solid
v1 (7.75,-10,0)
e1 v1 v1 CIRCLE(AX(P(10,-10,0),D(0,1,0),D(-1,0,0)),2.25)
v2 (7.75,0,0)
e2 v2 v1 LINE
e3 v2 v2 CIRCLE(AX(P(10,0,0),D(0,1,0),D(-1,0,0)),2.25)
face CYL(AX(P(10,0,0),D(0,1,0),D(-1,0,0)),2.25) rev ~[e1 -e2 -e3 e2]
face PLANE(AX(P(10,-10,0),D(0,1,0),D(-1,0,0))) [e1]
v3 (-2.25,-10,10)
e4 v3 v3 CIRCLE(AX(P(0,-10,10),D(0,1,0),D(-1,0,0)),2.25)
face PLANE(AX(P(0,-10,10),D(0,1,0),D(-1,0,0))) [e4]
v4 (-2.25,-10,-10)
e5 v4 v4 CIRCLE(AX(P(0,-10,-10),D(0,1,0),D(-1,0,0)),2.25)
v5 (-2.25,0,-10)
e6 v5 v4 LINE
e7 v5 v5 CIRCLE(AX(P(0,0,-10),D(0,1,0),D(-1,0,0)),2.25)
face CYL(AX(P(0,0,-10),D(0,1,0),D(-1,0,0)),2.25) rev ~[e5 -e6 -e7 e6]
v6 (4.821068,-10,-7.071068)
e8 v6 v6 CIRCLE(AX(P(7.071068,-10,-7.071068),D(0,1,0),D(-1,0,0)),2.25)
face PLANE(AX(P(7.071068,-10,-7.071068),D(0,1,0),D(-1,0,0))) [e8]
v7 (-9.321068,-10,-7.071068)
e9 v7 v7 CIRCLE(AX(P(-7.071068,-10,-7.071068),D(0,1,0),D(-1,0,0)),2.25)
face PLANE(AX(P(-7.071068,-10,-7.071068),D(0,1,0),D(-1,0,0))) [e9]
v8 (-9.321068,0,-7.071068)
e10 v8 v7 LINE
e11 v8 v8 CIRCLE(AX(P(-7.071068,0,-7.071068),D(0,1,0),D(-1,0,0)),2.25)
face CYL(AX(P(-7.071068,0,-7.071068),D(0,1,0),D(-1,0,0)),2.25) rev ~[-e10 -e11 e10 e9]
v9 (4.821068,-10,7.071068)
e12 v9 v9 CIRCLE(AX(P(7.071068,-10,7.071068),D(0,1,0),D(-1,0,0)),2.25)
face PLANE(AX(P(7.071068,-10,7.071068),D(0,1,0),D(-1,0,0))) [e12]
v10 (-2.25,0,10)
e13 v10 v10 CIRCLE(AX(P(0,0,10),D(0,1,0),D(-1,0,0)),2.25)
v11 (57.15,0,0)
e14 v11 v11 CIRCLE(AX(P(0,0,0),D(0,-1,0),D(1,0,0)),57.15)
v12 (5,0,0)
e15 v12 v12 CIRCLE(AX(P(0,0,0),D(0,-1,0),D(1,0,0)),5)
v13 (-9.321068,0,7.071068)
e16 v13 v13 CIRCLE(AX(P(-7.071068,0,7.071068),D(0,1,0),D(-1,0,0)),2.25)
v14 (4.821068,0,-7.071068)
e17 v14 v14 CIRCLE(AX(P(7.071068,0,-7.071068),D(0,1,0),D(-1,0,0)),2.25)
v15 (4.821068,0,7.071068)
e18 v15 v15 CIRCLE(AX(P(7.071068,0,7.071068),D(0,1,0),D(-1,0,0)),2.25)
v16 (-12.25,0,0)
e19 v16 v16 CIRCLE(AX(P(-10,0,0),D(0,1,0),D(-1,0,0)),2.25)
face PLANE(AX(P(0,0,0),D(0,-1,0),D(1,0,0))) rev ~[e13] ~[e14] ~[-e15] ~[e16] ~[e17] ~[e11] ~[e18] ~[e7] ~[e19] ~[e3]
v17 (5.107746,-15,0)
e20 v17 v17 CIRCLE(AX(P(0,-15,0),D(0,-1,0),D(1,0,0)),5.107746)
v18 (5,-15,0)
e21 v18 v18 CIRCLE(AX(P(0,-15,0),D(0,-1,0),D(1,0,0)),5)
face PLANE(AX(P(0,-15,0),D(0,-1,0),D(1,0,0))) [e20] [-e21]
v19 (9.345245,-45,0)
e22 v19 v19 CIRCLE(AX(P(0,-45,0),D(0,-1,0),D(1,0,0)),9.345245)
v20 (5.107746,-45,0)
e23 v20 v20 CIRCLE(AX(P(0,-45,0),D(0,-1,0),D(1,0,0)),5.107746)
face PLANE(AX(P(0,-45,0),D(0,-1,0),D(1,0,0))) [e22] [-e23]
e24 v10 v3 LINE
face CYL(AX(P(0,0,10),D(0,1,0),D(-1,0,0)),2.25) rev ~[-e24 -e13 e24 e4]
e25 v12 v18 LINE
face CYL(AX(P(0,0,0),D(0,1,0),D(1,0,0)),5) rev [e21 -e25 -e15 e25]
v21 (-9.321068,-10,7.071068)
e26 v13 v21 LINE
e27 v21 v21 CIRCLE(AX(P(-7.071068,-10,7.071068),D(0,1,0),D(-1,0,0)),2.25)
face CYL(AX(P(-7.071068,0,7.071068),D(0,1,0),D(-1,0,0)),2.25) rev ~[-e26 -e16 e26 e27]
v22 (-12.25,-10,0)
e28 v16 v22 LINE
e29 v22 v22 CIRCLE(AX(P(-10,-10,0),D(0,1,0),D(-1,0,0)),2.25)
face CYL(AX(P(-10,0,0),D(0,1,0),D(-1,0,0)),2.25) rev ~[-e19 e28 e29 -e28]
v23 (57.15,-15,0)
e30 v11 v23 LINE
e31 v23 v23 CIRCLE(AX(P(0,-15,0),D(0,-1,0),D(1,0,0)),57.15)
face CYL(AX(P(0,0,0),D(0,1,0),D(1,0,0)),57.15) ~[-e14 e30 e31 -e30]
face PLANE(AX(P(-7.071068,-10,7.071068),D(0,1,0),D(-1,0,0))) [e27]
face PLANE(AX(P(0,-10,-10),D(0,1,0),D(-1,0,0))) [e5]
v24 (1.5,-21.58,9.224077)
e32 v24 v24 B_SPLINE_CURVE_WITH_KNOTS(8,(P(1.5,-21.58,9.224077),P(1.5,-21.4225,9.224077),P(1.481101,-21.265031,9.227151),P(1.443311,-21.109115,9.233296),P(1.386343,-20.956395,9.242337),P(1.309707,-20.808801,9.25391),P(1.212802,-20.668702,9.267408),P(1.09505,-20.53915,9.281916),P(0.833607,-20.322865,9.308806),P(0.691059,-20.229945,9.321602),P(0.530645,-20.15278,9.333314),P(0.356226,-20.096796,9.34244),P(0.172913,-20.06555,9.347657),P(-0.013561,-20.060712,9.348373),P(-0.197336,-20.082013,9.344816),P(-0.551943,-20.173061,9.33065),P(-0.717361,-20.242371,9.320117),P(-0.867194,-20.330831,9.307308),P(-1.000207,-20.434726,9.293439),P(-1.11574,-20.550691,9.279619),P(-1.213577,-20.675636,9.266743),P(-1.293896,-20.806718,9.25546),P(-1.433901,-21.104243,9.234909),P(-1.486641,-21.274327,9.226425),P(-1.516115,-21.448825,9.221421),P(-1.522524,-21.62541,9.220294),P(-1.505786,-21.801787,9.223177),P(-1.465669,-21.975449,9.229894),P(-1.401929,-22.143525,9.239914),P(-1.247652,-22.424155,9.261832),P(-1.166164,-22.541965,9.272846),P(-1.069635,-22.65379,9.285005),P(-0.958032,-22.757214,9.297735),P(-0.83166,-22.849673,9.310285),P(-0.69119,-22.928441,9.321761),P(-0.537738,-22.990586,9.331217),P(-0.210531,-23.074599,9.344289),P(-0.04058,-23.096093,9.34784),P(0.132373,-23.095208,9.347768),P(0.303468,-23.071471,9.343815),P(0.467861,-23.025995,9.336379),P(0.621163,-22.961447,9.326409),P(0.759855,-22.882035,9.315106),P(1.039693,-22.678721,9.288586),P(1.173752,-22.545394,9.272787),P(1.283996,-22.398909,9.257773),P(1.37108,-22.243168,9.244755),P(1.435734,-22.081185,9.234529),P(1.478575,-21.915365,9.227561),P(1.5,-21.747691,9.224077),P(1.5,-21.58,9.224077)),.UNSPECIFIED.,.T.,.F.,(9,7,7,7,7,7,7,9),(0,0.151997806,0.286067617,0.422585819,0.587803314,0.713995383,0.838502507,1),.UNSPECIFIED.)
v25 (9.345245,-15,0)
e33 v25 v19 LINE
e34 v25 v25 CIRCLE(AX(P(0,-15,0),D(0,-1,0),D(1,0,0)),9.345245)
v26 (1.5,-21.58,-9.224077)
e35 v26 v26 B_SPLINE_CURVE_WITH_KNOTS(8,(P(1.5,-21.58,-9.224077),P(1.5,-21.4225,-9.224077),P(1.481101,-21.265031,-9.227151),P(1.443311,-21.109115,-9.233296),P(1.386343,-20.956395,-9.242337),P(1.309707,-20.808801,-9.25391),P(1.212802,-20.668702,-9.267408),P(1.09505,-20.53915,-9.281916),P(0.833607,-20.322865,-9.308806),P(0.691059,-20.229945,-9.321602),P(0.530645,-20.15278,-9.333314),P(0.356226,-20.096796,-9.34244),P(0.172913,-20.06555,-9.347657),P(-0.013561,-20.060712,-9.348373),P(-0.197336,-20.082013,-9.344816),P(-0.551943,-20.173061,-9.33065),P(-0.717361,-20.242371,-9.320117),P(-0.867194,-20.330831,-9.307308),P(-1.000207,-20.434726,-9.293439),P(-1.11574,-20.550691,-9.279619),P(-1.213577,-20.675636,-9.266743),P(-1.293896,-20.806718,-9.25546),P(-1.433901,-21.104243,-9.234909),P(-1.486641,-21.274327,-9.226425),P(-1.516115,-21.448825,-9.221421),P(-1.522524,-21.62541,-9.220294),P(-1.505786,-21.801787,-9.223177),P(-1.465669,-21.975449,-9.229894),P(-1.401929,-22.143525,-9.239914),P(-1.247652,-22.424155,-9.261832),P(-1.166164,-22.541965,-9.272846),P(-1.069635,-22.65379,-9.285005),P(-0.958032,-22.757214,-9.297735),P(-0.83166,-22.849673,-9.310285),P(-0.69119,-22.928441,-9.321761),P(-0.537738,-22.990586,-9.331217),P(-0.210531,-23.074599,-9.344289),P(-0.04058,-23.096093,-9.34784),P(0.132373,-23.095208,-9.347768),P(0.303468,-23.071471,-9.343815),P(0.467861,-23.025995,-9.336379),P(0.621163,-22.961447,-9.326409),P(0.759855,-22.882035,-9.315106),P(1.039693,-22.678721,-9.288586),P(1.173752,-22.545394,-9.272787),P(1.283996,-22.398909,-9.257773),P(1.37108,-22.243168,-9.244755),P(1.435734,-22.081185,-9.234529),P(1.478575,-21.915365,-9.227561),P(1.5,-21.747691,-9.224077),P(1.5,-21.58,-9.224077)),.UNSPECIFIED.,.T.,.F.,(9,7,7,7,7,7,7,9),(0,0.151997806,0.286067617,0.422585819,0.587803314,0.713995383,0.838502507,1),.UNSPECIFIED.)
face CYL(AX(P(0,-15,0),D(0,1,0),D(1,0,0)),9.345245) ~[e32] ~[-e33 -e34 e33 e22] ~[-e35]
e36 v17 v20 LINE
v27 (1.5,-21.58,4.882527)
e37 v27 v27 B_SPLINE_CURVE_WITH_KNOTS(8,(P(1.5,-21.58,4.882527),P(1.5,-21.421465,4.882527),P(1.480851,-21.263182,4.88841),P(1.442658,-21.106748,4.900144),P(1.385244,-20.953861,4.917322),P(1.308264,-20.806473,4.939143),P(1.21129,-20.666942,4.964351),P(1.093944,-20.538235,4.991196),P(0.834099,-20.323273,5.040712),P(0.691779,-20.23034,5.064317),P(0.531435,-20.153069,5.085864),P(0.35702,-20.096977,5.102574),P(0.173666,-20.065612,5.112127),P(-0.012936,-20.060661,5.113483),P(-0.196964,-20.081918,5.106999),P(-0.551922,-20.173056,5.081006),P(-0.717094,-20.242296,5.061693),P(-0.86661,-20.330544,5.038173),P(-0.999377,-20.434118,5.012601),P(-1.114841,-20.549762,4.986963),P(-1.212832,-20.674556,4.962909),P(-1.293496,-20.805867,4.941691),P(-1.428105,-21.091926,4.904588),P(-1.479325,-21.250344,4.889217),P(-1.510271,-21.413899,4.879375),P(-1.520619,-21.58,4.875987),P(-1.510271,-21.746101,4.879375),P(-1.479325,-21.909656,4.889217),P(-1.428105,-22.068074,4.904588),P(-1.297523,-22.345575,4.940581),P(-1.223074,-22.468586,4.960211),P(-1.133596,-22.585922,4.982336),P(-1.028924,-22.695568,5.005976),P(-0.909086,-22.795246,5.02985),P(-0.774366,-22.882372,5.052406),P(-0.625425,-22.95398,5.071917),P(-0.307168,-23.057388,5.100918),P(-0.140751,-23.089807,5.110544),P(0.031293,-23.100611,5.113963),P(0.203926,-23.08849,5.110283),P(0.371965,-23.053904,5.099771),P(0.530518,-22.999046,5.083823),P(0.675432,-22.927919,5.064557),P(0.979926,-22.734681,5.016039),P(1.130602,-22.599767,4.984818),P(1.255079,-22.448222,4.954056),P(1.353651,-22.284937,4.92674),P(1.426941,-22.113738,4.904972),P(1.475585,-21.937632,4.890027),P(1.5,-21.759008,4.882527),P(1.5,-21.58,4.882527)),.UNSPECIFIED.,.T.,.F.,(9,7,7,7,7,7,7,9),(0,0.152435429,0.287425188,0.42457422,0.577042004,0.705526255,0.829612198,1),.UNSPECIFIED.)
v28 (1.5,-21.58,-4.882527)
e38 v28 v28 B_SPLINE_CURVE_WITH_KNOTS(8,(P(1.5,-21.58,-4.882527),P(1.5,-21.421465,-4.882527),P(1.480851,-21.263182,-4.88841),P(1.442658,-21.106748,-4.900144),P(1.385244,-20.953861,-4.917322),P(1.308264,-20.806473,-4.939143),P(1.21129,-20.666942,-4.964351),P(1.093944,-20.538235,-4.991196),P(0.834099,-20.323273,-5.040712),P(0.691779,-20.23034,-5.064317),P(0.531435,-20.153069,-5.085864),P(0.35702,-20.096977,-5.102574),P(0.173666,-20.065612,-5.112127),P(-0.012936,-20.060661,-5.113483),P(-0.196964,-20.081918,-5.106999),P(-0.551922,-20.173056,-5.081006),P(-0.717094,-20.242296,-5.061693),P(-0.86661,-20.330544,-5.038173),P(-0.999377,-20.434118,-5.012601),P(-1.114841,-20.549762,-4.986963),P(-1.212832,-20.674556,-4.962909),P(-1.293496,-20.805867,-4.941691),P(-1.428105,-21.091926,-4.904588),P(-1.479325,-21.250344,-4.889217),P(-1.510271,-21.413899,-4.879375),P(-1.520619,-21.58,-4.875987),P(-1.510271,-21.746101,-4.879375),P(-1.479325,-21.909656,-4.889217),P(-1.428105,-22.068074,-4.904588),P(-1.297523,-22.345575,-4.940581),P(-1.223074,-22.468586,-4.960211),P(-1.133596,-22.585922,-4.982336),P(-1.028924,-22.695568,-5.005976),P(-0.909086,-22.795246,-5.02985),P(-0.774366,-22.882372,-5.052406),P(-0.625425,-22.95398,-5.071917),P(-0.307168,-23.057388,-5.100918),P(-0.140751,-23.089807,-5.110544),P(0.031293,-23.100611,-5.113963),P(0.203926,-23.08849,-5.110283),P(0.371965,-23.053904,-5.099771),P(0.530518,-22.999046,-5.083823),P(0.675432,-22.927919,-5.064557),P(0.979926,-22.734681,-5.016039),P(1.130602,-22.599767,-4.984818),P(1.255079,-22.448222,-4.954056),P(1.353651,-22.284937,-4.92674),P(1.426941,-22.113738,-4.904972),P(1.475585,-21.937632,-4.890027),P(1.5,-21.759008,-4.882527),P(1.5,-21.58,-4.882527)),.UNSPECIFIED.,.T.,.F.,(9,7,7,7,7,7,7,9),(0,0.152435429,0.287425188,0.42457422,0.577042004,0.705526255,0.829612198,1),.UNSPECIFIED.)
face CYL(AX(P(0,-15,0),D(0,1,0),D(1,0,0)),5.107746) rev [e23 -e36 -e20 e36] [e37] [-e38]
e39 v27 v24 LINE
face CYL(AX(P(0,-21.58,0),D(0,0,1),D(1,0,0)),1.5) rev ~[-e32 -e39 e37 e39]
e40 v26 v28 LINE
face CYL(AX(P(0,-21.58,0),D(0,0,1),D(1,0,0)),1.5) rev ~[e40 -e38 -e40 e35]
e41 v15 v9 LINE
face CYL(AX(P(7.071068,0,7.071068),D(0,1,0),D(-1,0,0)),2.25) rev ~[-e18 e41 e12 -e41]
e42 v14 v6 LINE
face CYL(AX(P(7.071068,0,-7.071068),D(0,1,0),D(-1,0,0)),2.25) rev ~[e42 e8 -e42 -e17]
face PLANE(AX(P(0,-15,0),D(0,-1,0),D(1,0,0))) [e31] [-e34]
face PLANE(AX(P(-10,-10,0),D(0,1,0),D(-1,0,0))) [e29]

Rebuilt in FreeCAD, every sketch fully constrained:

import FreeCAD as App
import Part
import Sketcher

V = App.Vector
Q = App.Units.Quantity

doc = App.newDocument("Part")
body = doc.addObject("PartDesign::Body", "Body")

sketch1 = doc.addObject("Sketcher::SketchObject", "Sketch")
body.addObject(sketch1)
sketch1.AttachmentSupport = (doc.XZ_Plane, [""])
sketch1.MapMode = "FlatFace"
sketch1.addGeometry([
    Part.Circle(V(0, 0, 0), V(0, 0, 1), 57),
    Part.Circle(V(0, 0, 0), V(0, 0, 1), 5),
], False)
sketch1.addConstraint([
    Sketcher.Constraint("Coincident", 0, 3, -1, 1),
    Sketcher.Constraint("Coincident", 1, 3, -1, 1),
    Sketcher.Constraint("Diameter", 1, Q("10 mm")),
    Sketcher.Constraint("Diameter", 0, Q("114.3 mm")),
])
pad1 = doc.addObject("PartDesign::Pad", "Pad")
body.addObject(pad1)
pad1.Profile = sketch1
pad1.Length = 15

sketch2 = doc.addObject("Sketcher::SketchObject", "Sketch001")
body.addObject(sketch2)
sketch2.AttachmentSupport = (doc.XZ_Plane, [""])
sketch2.MapMode = "FlatFace"
sketch2.AttachmentOffset = App.Placement(V(0, 0, 15), App.Rotation())
sketch2.addGeometry([
    Part.Circle(V(0, 0, 0), V(0, 0, 1), 9),
    Part.Circle(V(0, 0, 0), V(0, 0, 1), 5),
], False)
sketch2.addConstraint([
    Sketcher.Constraint("Coincident", 0, 3, -1, 1),
    Sketcher.Constraint("Coincident", 1, 3, -1, 1),
    Sketcher.Constraint("Diameter", 0, Q("18.69049 mm")),
    Sketcher.Constraint("Diameter", 1, Q("10.215492 mm")),
])
pad2 = doc.addObject("PartDesign::Pad", "Pad001")
body.addObject(pad2)
pad2.Profile = sketch2
pad2.Length = 30

sketch3 = doc.addObject("Sketcher::SketchObject", "Sketch002")
body.addObject(sketch3)
sketch3.AttachmentSupport = (doc.XY_Plane, [""])
sketch3.MapMode = "FlatFace"
sketch3.addGeometry(Part.Circle(V(0, -21.6, 0), V(0, 0, 1), 1.5), False)
sketch3.addConstraint([
    Sketcher.Constraint("PointOnObject", 0, 3, -2),
    Sketcher.Constraint("Diameter", 0, Q("3 mm")),
    Sketcher.Constraint("DistanceY", 0, 3, -1, 1, Q("21.58 mm")),
])
pocket1 = doc.addObject("PartDesign::Pocket", "Pocket")
body.addObject(pocket1)
pocket1.Profile = sketch3
pocket1.Length = 25.4
pocket1.Midplane = True

sketch4 = doc.addObject("Sketcher::SketchObject", "Sketch003")
body.addObject(sketch4)
sketch4.AttachmentSupport = (doc.XZ_Plane, [""])
sketch4.MapMode = "FlatFace"
sketch4.addGeometry([
    Part.Circle(V(0, 10, 0), V(0, 0, 1), 2.2),
    Part.Circle(V(-7.1, 7.1, 0), V(0, 0, 1), 2.2),
    Part.Circle(V(-10, 0, 0), V(0, 0, 1), 2.2),
    Part.Circle(V(0, -10, 0), V(0, 0, 1), 2.2),
    Part.Circle(V(-7.1, -7.1, 0), V(0, 0, 1), 2.2),
    Part.Circle(V(7.1, -7.1, 0), V(0, 0, 1), 2.2),
    Part.Circle(V(10, 0, 0), V(0, 0, 1), 2.2),
    Part.Circle(V(7.1, 7.1, 0), V(0, 0, 1), 2.2),
], False)
sketch4.addConstraint([
    Sketcher.Constraint("Equal", 0, 1),
    Sketcher.Constraint("Equal", 1, 2),
    Sketcher.Constraint("Equal", 2, 3),
    Sketcher.Constraint("Equal", 3, 4),
    Sketcher.Constraint("Equal", 4, 5),
    Sketcher.Constraint("Equal", 5, 6),
    Sketcher.Constraint("Equal", 6, 7),
    Sketcher.Constraint("Symmetric", 0, 3, 3, 3, -1, 1),
    Sketcher.Constraint("Symmetric", 1, 3, 5, 3, -1, 1),
    Sketcher.Constraint("Symmetric", 2, 3, 6, 3, -1, 1),
    Sketcher.Constraint("Symmetric", 4, 3, 7, 3, -1, 1),
    Sketcher.Constraint("Symmetric", 4, 3, 5, 3, -2),
    Sketcher.Constraint("PointOnObject", 0, 3, -2),
    Sketcher.Constraint("PointOnObject", 2, 3, -1),
    Sketcher.Constraint("Diameter", 0, Q("4.5 mm")),
    Sketcher.Constraint("DistanceY", -1, 1, 0, 3, Q("10 mm")),
    Sketcher.Constraint("DistanceX", 2, 3, -1, 1, Q("10 mm")),
    Sketcher.Constraint("DistanceX", 1, 3, -1, 1, Q("7.071068 mm")),
    Sketcher.Constraint("DistanceY", -1, 1, 1, 3, Q("7.071068 mm")),
])
pocket2 = doc.addObject("PartDesign::Pocket", "Pocket001")
body.addObject(pocket2)
pocket2.Profile = sketch4
pocket2.Length = 10
pocket2.Reversed = True

doc.recompute()
